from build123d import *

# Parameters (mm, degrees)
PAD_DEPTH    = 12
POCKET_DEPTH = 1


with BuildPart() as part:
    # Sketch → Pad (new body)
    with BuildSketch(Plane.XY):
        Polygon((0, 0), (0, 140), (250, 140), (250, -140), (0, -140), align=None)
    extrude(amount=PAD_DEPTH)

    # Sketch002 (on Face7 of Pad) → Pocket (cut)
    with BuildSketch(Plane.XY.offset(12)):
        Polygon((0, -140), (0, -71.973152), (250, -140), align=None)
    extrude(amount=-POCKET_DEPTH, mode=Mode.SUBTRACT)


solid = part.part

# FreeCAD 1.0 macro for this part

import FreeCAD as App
import Part
import Sketcher

doc = App.newDocument("Part")
body = doc.addObject("PartDesign::Body", "Body")

sketch1 = body.newObject("Sketcher::SketchObject", "Sketch")
sketch1.AttachmentSupport = (doc.getObject("XY_Plane"), [""])
sketch1.MapMode = "FlatFace"
sketch1.addGeometry([
    Part.LineSegment(App.Vector(0, 140, 0), App.Vector(0, -140, 0)),
    Part.LineSegment(App.Vector(0, -140, 0), App.Vector(250, -140, 0)),
    Part.LineSegment(App.Vector(250, -140, 0), App.Vector(250, 140, 0)),
    Part.LineSegment(App.Vector(250, 140, 0), App.Vector(0, 140, 0)),
], False)
sketch1.addConstraint([
    Sketcher.Constraint("Coincident", 0, 2, 1, 1),
    Sketcher.Constraint("Coincident", 1, 2, 2, 1),
    Sketcher.Constraint("Coincident", 2, 2, 3, 1),
    Sketcher.Constraint("Coincident", 3, 2, 0, 1),
    Sketcher.Constraint("Vertical", 0),
    Sketcher.Constraint("Horizontal", 1),
    Sketcher.Constraint("Vertical", 2),
    Sketcher.Constraint("Horizontal", 3),
    Sketcher.Constraint("Symmetric", 0, 2, 3, 2, -1, 1),
    Sketcher.Constraint("DistanceX", 1, 1, 1, 2, 250.0),
    Sketcher.Constraint("DistanceY", 0, 2, 0, 1, 280.0),
])
pad1 = body.newObject("PartDesign::Pad", "Pad")
pad1.Profile = sketch1
pad1.Length = 12

sketch2 = body.newObject("Sketcher::SketchObject", "Sketch001")
sketch2.AttachmentSupport = (doc.getObject("XY_Plane"), [""])
sketch2.MapMode = "FlatFace"
sketch2.AttachmentOffset = App.Placement(App.Vector(0, 0, 12), App.Rotation())
sketch2.addGeometry([
    Part.LineSegment(App.Vector(0, -72, 0), App.Vector(0, -140, 0)),
    Part.LineSegment(App.Vector(0, -140, 0), App.Vector(250, -140, 0)),
    Part.LineSegment(App.Vector(250, -140, 0), App.Vector(0, -72, 0)),
], False)
sketch2.addConstraint([
    Sketcher.Constraint("Coincident", 0, 2, 1, 1),
    Sketcher.Constraint("Coincident", 1, 2, 2, 1),
    Sketcher.Constraint("Coincident", 2, 2, 0, 1),
    Sketcher.Constraint("Vertical", 0),
    Sketcher.Constraint("Horizontal", 1),
    Sketcher.Constraint("PointOnObject", 0, 2, -2),
    Sketcher.Constraint("DistanceX", 1, 1, 1, 2, 250.0),
    Sketcher.Constraint("DistanceY", 0, 2, -1, 1, 140.0),
    Sketcher.Constraint("DistanceY", 0, 2, 0, 1, 68.026848),
])
pocket1 = body.newObject("PartDesign::Pocket", "Pocket")
pocket1.Profile = sketch2
pocket1.Length = 1

doc.recompute()
